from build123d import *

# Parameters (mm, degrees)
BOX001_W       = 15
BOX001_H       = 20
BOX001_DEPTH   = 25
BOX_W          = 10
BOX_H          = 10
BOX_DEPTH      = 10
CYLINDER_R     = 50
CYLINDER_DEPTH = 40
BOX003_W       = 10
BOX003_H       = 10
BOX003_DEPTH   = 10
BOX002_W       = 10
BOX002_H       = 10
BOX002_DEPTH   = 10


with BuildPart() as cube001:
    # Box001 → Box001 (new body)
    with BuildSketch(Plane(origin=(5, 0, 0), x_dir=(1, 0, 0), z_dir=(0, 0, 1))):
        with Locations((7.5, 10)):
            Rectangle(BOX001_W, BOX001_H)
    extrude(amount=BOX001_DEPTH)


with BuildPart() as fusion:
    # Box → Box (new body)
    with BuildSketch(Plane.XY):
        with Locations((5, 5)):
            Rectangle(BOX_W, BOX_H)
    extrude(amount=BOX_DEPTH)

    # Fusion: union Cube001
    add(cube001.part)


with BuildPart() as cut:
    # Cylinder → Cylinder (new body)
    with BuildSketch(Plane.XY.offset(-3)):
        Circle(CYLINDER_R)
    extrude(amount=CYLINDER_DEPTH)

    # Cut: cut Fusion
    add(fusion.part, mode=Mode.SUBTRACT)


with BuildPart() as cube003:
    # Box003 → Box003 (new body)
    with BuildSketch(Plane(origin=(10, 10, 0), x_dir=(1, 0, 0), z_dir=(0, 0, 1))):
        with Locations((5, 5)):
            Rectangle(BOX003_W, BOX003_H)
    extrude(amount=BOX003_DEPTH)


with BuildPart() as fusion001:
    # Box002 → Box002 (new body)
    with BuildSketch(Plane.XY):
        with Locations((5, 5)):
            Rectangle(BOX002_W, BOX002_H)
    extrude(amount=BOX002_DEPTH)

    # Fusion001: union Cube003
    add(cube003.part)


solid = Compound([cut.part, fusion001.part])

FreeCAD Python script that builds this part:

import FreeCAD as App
import Part
import Sketcher
from FreeCAD import Vector

doc = App.newDocument("Part")
body = doc.addObject("PartDesign::Body", "Body")

# Sketch on XY plane
sketch1 = doc.addObject("Sketcher::SketchObject", "Sketch")
body.addObject(sketch1)
sketch1.AttachmentSupport = (doc.XY_Plane, [""])
sketch1.MapMode = "FlatFace"
sketch1.addGeometry([
    Part.LineSegment(Vector(5, 20, 0), Vector(5, 0, 0)),
    Part.LineSegment(Vector(5, 0, 0), Vector(20, 0, 0)),
    Part.LineSegment(Vector(20, 0, 0), Vector(20, 20, 0)),
    Part.LineSegment(Vector(20, 20, 0), Vector(5, 20, 0)),
], False)
sketch1.addConstraint([
    Sketcher.Constraint("Coincident", 0, 2, 1, 1),
    Sketcher.Constraint("Coincident", 1, 2, 2, 1),
    Sketcher.Constraint("Coincident", 2, 2, 3, 1),
    Sketcher.Constraint("Coincident", 3, 2, 0, 1),
    Sketcher.Constraint("Vertical", 0),
    Sketcher.Constraint("Horizontal", 1),
    Sketcher.Constraint("Vertical", 2),
    Sketcher.Constraint("Horizontal", 3),
    Sketcher.Constraint("PointOnObject", 0, 2, -1),
    Sketcher.Constraint("DistanceX", 1, 1, 1, 2, 15.0),
    Sketcher.Constraint("DistanceY", 0, 2, 0, 1, 20.0),
    Sketcher.Constraint("DistanceX", -1, 1, 0, 2, 5.0),
])
pad1 = doc.addObject("PartDesign::Pad", "Pad")
body.addObject(pad1)
pad1.Profile = sketch1
pad1.Length = 25
body2 = doc.addObject("PartDesign::Body", "Body001")

# Sketch on XY plane
sketch2 = doc.addObject("Sketcher::SketchObject", "Sketch001")
body2.addObject(sketch2)
sketch2.AttachmentSupport = (doc.getObject("XY_Plane001"), [""])
sketch2.MapMode = "FlatFace"
sketch2.addGeometry([
    Part.LineSegment(Vector(0, 10, 0), Vector(0, 0, 0)),
    Part.LineSegment(Vector(0, 0, 0), Vector(10, 0, 0)),
    Part.LineSegment(Vector(10, 0, 0), Vector(10, 10, 0)),
    Part.LineSegment(Vector(10, 10, 0), Vector(0, 10, 0)),
], False)
sketch2.addConstraint([
    Sketcher.Constraint("Coincident", 0, 2, 1, 1),
    Sketcher.Constraint("Coincident", 1, 2, 2, 1),
    Sketcher.Constraint("Coincident", 2, 2, 3, 1),
    Sketcher.Constraint("Coincident", 3, 2, 0, 1),
    Sketcher.Constraint("Vertical", 0),
    Sketcher.Constraint("Horizontal", 1),
    Sketcher.Constraint("Vertical", 2),
    Sketcher.Constraint("Horizontal", 3),
    Sketcher.Constraint("Coincident", 0, 2, -1, 1),
    Sketcher.Constraint("Equal", 3, 0),
    Sketcher.Constraint("DistanceX", 1, 1, 1, 2, 10.0),
])
pad2 = doc.addObject("PartDesign::Pad", "Pad001")
body2.addObject(pad2)
pad2.Profile = sketch2
pad2.Length = 10
doc.recompute()

boolean = doc.addObject("PartDesign::Boolean", "Boolean")
body2.addObject(boolean)
boolean.Type = "Fuse"
boolean.addObjects([body])
body3 = doc.addObject("PartDesign::Body", "Body002")

# Sketch on XY plane
sketch3 = doc.addObject("Sketcher::SketchObject", "Sketch002")
body3.addObject(sketch3)
sketch3.AttachmentSupport = (doc.getObject("XY_Plane002"), [""])
sketch3.MapMode = "FlatFace"
sketch3.AttachmentOffset = App.Placement(Vector(0, 0, -3), App.Rotation())
sketch3.addGeometry(Part.Circle(Vector(0, 0, 0), Vector(0, 0, 1), 50), False)
sketch3.addConstraint([
    Sketcher.Constraint("Coincident", 0, 3, -1, 1),
    Sketcher.Constraint("Diameter", 0, 100.0),
])
pad3 = doc.addObject("PartDesign::Pad", "Pad002")
body3.addObject(pad3)
pad3.Profile = sketch3
pad3.Length = 40
doc.recompute()

boolean2 = doc.addObject("PartDesign::Boolean", "Boolean001")
body3.addObject(boolean2)
boolean2.Type = "Cut"
boolean2.addObjects([body2])
body4 = doc.addObject("PartDesign::Body", "Body003")

# Sketch on XY plane
sketch4 = doc.addObject("Sketcher::SketchObject", "Sketch003")
body4.addObject(sketch4)
sketch4.AttachmentSupport = (doc.getObject("XY_Plane003"), [""])
sketch4.MapMode = "FlatFace"
sketch4.addGeometry([
    Part.LineSegment(Vector(10, 20, 0), Vector(10, 10, 0)),
    Part.LineSegment(Vector(10, 10, 0), Vector(20, 10, 0)),
    Part.LineSegment(Vector(20, 10, 0), Vector(20, 20, 0)),
    Part.LineSegment(Vector(20, 20, 0), Vector(10, 20, 0)),
], False)
sketch4.addConstraint([
    Sketcher.Constraint("Coincident", 0, 2, 1, 1),
    Sketcher.Constraint("Coincident", 1, 2, 2, 1),
    Sketcher.Constraint("Coincident", 2, 2, 3, 1),
    Sketcher.Constraint("Coincident", 3, 2, 0, 1),
    Sketcher.Constraint("Vertical", 0),
    Sketcher.Constraint("Horizontal", 1),
    Sketcher.Constraint("Vertical", 2),
    Sketcher.Constraint("Horizontal", 3),
    Sketcher.Constraint("Equal", 3, 0),
    Sketcher.Constraint("DistanceX", 1, 1, 1, 2, 10.0),
    Sketcher.Constraint("DistanceX", -1, 1, 0, 2, 10.0),
    Sketcher.Constraint("DistanceY", -1, 1, 0, 2, 10.0),
])
pad4 = doc.addObject("PartDesign::Pad", "Pad003")
body4.addObject(pad4)
pad4.Profile = sketch4
pad4.Length = 10
body5 = doc.addObject("PartDesign::Body", "Body004")
body5.AllowCompound = True

# Sketch on XY plane
sketch5 = doc.addObject("Sketcher::SketchObject", "Sketch004")
body5.addObject(sketch5)
sketch5.AttachmentSupport = (doc.getObject("XY_Plane004"), [""])
sketch5.MapMode = "FlatFace"
sketch5.addGeometry([
    Part.LineSegment(Vector(0, 10, 0), Vector(0, 0, 0)),
    Part.LineSegment(Vector(0, 0, 0), Vector(10, 0, 0)),
    Part.LineSegment(Vector(10, 0, 0), Vector(10, 10, 0)),
    Part.LineSegment(Vector(10, 10, 0), Vector(0, 10, 0)),
], False)
sketch5.addConstraint([
    Sketcher.Constraint("Coincident", 0, 2, 1, 1),
    Sketcher.Constraint("Coincident", 1, 2, 2, 1),
    Sketcher.Constraint("Coincident", 2, 2, 3, 1),
    Sketcher.Constraint("Coincident", 3, 2, 0, 1),
    Sketcher.Constraint("Vertical", 0),
    Sketcher.Constraint("Horizontal", 1),
    Sketcher.Constraint("Vertical", 2),
    Sketcher.Constraint("Horizontal", 3),
    Sketcher.Constraint("Coincident", 0, 2, -1, 1),
    Sketcher.Constraint("Equal", 3, 0),
    Sketcher.Constraint("DistanceX", 1, 1, 1, 2, 10.0),
])
pad5 = doc.addObject("PartDesign::Pad", "Pad004")
body5.addObject(pad5)
pad5.Profile = sketch5
pad5.Length = 10
doc.recompute()

boolean3 = doc.addObject("PartDesign::Boolean", "Boolean002")
body5.addObject(boolean3)
boolean3.Type = "Fuse"
boolean3.addObjects([body4])

doc.recompute()
